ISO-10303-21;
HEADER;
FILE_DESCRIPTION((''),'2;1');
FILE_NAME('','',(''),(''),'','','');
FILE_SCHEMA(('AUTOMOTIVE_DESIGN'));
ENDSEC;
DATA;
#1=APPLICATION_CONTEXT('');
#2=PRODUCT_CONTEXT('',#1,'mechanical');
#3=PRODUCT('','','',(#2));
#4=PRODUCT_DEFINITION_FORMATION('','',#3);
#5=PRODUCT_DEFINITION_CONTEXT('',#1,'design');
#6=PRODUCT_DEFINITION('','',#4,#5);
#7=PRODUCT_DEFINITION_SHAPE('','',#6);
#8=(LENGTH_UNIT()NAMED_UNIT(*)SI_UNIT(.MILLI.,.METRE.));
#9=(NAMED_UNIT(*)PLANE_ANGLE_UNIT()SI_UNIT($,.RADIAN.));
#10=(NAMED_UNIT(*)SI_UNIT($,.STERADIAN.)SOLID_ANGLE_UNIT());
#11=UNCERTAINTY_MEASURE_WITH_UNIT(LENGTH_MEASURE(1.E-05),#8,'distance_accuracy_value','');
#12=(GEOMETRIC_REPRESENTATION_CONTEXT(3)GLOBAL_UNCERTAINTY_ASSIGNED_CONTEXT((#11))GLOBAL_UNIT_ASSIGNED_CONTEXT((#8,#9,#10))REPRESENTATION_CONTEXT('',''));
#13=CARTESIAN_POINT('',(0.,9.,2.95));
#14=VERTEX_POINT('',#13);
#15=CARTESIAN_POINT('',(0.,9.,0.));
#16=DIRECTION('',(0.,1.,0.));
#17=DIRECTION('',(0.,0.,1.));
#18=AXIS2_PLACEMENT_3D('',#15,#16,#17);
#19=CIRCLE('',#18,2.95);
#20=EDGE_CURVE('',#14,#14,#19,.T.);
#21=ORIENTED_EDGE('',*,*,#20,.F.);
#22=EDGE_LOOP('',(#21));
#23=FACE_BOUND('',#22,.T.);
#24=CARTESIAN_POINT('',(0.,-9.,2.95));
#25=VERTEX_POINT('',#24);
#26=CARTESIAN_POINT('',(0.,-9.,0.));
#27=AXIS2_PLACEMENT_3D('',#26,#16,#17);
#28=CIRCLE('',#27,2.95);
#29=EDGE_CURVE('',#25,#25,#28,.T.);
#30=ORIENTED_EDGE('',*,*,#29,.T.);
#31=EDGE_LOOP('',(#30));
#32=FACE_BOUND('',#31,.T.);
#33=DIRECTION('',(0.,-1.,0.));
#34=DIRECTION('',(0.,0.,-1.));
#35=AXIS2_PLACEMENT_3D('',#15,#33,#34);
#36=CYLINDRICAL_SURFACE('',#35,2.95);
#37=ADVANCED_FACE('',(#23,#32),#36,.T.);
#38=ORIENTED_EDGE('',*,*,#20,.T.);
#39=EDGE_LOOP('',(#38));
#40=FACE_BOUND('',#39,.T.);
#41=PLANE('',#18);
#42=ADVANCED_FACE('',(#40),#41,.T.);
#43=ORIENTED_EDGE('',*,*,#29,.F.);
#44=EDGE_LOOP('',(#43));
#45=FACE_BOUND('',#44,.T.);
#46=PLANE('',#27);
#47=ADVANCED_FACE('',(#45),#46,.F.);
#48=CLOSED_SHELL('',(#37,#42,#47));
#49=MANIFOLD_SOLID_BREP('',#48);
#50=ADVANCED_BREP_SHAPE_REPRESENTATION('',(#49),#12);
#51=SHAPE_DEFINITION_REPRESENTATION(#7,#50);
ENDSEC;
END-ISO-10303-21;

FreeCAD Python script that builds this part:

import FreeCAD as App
import Part
import Sketcher

V = App.Vector

doc = App.newDocument("Part")
body = doc.addObject("PartDesign::Body", "Body")

# Sketch on XZ plane
sketch1 = body.newObject("Sketcher::SketchObject", "Sketch")
sketch1.AttachmentSupport = (doc.getObject("XZ_Plane"), [""])
sketch1.MapMode = "FlatFace"
sketch1.addGeometry(Part.Circle(V(0, 0, 0), V(0, 0, 1), 3), False)
sketch1.addConstraint(Sketcher.Constraint("Coincident", 0, 3, -1, 1))
sketch1.addConstraint(Sketcher.Constraint("Diameter", 0, 5.9))
pad1 = body.newObject("PartDesign::Pad", "Pad")
pad1.Profile = sketch1
pad1.Length = 18
pad1.Midplane = True

doc.recompute()
